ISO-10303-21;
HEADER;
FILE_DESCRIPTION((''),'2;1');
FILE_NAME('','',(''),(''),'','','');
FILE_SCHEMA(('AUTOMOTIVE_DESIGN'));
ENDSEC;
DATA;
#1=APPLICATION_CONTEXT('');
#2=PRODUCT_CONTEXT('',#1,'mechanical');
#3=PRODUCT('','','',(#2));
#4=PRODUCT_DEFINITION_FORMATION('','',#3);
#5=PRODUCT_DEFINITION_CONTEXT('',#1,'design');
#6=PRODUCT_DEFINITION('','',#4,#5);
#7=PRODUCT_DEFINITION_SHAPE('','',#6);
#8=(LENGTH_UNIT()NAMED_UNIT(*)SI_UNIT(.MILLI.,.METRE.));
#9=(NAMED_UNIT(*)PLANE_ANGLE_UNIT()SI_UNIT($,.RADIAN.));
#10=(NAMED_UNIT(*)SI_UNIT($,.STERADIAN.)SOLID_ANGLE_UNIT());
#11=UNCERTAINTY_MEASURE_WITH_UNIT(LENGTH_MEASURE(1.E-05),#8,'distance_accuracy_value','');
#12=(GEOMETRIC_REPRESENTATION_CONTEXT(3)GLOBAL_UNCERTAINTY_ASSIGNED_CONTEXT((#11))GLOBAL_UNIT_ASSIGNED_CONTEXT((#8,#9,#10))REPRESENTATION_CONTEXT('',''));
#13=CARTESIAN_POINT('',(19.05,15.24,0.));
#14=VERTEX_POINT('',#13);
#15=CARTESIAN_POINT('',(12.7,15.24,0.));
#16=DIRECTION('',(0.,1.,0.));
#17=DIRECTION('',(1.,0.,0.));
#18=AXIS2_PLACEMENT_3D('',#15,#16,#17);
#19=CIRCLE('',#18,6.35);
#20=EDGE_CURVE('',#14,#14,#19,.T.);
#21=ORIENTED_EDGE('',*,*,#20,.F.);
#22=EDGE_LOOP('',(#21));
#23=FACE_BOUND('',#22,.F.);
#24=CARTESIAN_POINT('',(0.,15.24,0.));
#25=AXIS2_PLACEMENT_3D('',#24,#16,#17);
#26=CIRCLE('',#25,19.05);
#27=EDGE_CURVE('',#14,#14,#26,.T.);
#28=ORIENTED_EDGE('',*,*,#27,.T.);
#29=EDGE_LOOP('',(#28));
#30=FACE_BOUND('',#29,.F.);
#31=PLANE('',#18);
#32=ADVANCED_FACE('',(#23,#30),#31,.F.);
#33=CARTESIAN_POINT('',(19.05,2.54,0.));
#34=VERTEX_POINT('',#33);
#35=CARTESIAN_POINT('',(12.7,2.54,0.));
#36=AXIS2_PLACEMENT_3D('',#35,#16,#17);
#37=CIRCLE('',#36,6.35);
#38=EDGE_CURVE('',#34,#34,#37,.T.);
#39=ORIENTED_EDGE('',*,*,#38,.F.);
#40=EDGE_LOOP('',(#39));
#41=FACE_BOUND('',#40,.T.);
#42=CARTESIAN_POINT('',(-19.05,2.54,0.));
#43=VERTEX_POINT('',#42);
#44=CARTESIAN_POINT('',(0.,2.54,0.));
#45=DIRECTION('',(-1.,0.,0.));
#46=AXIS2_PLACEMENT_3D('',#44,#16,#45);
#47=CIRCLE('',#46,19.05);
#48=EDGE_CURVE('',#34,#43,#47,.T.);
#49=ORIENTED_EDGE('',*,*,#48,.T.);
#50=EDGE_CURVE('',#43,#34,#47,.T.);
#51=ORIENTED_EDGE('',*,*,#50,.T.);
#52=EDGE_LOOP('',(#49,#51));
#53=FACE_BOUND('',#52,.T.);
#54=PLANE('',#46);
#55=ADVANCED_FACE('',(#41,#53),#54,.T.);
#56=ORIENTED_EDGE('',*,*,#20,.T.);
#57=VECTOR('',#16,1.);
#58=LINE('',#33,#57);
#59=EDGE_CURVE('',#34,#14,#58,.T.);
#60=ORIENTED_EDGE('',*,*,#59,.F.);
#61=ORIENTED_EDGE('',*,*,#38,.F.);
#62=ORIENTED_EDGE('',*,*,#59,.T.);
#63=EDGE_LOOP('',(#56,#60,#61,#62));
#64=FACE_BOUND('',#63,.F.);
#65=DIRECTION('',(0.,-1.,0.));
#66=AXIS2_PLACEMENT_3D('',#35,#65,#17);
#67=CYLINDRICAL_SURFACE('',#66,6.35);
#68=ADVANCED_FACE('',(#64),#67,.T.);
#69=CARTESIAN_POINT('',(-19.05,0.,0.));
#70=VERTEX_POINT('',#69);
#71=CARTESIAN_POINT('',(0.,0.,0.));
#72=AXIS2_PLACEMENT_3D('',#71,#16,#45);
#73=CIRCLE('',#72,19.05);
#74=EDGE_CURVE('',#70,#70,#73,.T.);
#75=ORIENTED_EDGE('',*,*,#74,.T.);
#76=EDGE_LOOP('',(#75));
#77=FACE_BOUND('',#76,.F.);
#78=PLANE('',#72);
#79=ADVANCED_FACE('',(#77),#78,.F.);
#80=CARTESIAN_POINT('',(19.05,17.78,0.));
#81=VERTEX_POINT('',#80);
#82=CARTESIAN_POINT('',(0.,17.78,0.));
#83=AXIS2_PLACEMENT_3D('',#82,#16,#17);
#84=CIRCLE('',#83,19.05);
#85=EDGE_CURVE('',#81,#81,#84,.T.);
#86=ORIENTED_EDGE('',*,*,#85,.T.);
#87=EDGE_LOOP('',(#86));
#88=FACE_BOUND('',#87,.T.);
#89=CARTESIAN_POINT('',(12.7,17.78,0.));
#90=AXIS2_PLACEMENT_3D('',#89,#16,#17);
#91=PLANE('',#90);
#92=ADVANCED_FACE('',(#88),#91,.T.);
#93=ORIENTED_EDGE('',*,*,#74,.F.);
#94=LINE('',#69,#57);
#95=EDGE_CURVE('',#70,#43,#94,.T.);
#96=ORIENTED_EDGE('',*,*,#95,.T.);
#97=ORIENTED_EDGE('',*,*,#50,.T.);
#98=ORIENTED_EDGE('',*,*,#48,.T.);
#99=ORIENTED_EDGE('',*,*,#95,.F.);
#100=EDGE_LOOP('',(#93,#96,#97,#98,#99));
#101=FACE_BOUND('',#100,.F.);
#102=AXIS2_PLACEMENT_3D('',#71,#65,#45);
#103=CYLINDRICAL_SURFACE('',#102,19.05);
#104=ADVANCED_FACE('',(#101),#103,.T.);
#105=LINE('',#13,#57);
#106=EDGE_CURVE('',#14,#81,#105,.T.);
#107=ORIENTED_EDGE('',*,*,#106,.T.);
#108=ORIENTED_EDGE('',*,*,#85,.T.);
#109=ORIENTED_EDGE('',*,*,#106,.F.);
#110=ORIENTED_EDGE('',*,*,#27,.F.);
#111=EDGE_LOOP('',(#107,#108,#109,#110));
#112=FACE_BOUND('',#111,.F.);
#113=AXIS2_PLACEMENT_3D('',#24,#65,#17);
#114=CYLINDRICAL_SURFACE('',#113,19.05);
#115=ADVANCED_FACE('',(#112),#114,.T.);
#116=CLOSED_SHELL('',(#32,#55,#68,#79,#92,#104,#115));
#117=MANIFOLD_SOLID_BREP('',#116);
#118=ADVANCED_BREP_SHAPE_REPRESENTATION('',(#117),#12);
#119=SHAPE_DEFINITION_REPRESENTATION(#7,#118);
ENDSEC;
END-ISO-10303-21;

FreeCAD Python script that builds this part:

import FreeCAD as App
import Part
import Sketcher

V = App.Vector
Q = App.Units.Quantity

doc = App.newDocument("Part")
body = doc.addObject("PartDesign::Body", "Body")

# Sketch on XZ plane
sketch1 = body.newObject("Sketcher::SketchObject", "Sketch")
sketch1.AttachmentSupport = (doc.getObject("XZ_Plane"), [""])
sketch1.MapMode = "FlatFace"
sketch1.addGeometry(Part.Circle(V(0, 0, 0), V(0, 0, 1), 19.05), False)
sketch1.addConstraint([
    Sketcher.Constraint("Coincident", 0, 3, -1, 1),
    Sketcher.Constraint("Diameter", 0, Q("1.5 in")),
])
pad1 = body.newObject("PartDesign::Pad", "Pad")
pad1.Profile = sketch1
pad1.Length = Q("0.1 in")
pad1.Reversed = True

# Sketch on XZ plane
sketch2 = body.newObject("Sketcher::SketchObject", "Sketch001")
sketch2.AttachmentSupport = (doc.getObject("XZ_Plane"), [""])
sketch2.MapMode = "FlatFace"
sketch2.AttachmentOffset = App.Placement(V(0, 0, -0.1 * 25.4), App.Rotation())
sketch2.addGeometry(Part.Circle(V(12.7, 0, 0), V(0, 0, 1), 6.35), False)
sketch2.addConstraint([
    Sketcher.Constraint("PointOnObject", 0, 3, -1),
    Sketcher.Constraint("Diameter", 0, Q("0.5 in")),
    Sketcher.Constraint("DistanceX", -1, 1, 0, 3, Q("0.5 in")),
])
pad2 = body.newObject("PartDesign::Pad", "Pad001")
pad2.Profile = sketch2
pad2.Length = Q("0.5 in")
pad2.Reversed = True

# Sketch on XZ plane
sketch3 = body.newObject("Sketcher::SketchObject", "Sketch002")
sketch3.AttachmentSupport = (doc.getObject("XZ_Plane"), [""])
sketch3.MapMode = "FlatFace"
sketch3.AttachmentOffset = App.Placement(V(0, 0, -0.6 * 25.4), App.Rotation())
sketch3.addGeometry(Part.Circle(V(0, 0, 0), V(0, 0, 1), 19.05), False)
sketch3.addConstraint([
    Sketcher.Constraint("Coincident", 0, 3, -1, 1),
    Sketcher.Constraint("Diameter", 0, Q("1.5 in")),
])
pad3 = body.newObject("PartDesign::Pad", "Pad002")
pad3.Profile = sketch3
pad3.Length = Q("0.1 in")
pad3.Reversed = True

doc.recompute()
